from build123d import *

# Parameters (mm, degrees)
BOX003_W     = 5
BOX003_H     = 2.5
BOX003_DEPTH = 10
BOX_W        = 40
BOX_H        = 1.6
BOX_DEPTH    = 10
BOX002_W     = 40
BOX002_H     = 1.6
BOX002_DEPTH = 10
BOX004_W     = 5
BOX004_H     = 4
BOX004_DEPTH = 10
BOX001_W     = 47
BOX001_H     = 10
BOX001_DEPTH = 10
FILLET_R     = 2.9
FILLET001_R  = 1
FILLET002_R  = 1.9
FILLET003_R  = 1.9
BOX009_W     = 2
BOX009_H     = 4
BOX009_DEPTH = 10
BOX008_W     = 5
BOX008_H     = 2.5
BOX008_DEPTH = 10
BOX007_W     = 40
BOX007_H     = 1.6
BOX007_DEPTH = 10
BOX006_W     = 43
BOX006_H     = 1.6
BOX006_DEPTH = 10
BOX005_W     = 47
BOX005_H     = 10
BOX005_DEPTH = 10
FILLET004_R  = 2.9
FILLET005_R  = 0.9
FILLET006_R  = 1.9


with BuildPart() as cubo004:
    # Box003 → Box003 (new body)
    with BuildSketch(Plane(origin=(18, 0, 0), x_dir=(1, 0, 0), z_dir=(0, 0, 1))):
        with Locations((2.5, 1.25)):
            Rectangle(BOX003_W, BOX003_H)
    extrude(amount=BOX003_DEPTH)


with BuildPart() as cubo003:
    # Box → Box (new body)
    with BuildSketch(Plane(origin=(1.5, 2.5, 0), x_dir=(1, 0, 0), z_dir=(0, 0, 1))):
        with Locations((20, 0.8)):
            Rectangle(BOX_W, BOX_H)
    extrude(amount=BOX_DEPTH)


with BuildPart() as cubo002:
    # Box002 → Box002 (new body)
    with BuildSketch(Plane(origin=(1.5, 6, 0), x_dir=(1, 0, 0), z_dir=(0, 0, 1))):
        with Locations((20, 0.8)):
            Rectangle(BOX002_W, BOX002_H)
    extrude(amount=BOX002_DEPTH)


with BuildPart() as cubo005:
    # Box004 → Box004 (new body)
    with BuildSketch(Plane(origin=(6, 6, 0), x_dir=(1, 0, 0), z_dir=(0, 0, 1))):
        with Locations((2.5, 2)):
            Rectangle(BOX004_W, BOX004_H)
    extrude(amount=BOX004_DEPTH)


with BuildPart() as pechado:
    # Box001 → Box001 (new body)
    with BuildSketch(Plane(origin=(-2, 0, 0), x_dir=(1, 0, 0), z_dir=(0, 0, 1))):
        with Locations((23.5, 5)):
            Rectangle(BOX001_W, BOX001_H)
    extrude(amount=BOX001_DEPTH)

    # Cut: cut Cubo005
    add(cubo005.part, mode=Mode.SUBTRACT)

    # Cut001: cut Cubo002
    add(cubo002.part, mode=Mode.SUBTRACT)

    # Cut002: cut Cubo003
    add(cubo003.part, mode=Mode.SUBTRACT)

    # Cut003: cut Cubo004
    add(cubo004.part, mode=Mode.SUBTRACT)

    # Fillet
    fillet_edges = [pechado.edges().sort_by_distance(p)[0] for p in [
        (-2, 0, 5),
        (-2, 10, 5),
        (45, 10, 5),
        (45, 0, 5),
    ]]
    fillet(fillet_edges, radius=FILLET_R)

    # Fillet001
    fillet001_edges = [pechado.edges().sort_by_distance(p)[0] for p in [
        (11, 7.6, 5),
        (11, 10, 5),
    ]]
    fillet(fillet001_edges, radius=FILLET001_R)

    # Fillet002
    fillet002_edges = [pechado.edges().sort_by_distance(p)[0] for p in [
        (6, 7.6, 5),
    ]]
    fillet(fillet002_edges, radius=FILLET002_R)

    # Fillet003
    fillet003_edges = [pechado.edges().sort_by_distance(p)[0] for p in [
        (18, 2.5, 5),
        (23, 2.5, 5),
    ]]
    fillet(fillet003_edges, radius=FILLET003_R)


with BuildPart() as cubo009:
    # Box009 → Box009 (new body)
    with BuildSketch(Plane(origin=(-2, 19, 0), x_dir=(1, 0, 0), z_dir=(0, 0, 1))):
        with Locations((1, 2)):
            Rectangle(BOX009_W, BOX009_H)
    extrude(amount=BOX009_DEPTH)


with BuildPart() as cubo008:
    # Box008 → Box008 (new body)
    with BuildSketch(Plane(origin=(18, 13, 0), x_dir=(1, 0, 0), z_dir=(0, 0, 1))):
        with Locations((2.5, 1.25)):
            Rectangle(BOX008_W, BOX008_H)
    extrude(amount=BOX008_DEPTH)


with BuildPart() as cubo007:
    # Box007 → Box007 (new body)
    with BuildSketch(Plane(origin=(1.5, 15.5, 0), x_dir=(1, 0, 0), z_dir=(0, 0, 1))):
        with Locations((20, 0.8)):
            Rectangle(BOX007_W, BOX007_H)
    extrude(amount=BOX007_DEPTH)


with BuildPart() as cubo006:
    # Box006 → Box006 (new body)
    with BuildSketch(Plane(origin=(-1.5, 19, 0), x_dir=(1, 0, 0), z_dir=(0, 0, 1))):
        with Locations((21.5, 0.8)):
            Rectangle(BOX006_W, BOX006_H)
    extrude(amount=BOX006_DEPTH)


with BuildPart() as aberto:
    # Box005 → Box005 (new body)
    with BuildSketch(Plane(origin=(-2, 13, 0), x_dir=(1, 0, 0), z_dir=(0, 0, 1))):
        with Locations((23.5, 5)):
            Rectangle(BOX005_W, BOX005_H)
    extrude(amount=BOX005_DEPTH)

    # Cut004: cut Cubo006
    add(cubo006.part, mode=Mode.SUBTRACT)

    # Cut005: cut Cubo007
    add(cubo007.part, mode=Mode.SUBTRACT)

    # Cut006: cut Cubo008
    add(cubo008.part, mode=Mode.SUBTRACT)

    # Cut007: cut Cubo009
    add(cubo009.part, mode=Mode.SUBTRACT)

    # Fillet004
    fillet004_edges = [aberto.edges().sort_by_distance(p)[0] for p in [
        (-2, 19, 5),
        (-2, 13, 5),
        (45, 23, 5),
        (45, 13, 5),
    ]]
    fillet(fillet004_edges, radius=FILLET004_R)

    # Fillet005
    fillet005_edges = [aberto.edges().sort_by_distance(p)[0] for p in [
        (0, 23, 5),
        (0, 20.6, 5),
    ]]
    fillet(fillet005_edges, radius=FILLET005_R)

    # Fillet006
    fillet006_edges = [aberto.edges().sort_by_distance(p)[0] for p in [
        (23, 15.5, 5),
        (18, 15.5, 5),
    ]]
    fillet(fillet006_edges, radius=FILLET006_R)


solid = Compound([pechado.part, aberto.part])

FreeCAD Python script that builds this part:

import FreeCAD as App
import Part
import Sketcher
from FreeCAD import Vector


def edges_at(feature, points):
    """Names of the edges that pass closest to the given points."""
    edges = feature.Shape.Edges
    near = lambda p: min(range(len(edges)), key=lambda i: edges[i].distToShape(Part.Vertex(*p))[0])
    return sorted({f"Edge{near(p) + 1}" for p in points})


def add_polygon(sketch, points):
    """Adds a closed chain of lines whose ends are joined by coincident constraints."""
    first, n = sketch.GeometryCount, len(points)
    for a, b in zip(points, points[1:] + points[:1]):
        sketch.addGeometry(Part.LineSegment(App.Vector(*a, 0), App.Vector(*b, 0)), False)
    for i in range(n):
        sketch.addConstraint(Sketcher.Constraint("Coincident", first + i, 2, first + (i + 1) % n, 1))

doc = App.newDocument("Part")
body = doc.addObject("PartDesign::Body", "Body")

# Sketch on XY plane
sketch1 = body.newObject("Sketcher::SketchObject", "Sketch")
sketch1.AttachmentSupport = (doc.getObject("XY_Plane"), [""])
sketch1.MapMode = "FlatFace"
add_polygon(sketch1, [(18, 2.5), (18, 0), (23, 0), (23, 2.5)])  # lines 0-3
sketch1.addConstraint(Sketcher.Constraint("Vertical", 0))
sketch1.addConstraint(Sketcher.Constraint("Horizontal", 1))
sketch1.addConstraint(Sketcher.Constraint("Vertical", 2))
sketch1.addConstraint(Sketcher.Constraint("Horizontal", 3))
sketch1.addConstraint(Sketcher.Constraint("PointOnObject", 0, 2, -1))
sketch1.addConstraint(Sketcher.Constraint("DistanceX", 1, 1, 1, 2, 5.0))
sketch1.addConstraint(Sketcher.Constraint("DistanceY", 0, 2, 0, 1, 2.5))
sketch1.addConstraint(Sketcher.Constraint("DistanceX", -1, 1, 0, 2, 18.0))
pad1 = body.newObject("PartDesign::Pad", "Pad")
pad1.Profile = sketch1
pad1.Length = 10
body2 = doc.addObject("PartDesign::Body", "Body001")

# Sketch on XY plane
sketch2 = body2.newObject("Sketcher::SketchObject", "Sketch001")
sketch2.AttachmentSupport = (doc.getObject("XY_Plane001"), [""])
sketch2.MapMode = "FlatFace"
add_polygon(sketch2, [(1.5, 4.1), (1.5, 2.5), (41.5, 2.5), (41.5, 4.1)])  # lines 0-3
sketch2.addConstraint(Sketcher.Constraint("Vertical", 0))
sketch2.addConstraint(Sketcher.Constraint("Horizontal", 1))
sketch2.addConstraint(Sketcher.Constraint("Vertical", 2))
sketch2.addConstraint(Sketcher.Constraint("Horizontal", 3))
sketch2.addConstraint(Sketcher.Constraint("DistanceX", 1, 1, 1, 2, 40.0))
sketch2.addConstraint(Sketcher.Constraint("DistanceY", 0, 2, 0, 1, 1.6))
sketch2.addConstraint(Sketcher.Constraint("DistanceX", -1, 1, 0, 2, 1.5))
sketch2.addConstraint(Sketcher.Constraint("DistanceY", -1, 1, 0, 2, 2.5))
pad2 = body2.newObject("PartDesign::Pad", "Pad001")
pad2.Profile = sketch2
pad2.Length = 10
body3 = doc.addObject("PartDesign::Body", "Body002")

# Sketch on XY plane
sketch3 = body3.newObject("Sketcher::SketchObject", "Sketch002")
sketch3.AttachmentSupport = (doc.getObject("XY_Plane002"), [""])
sketch3.MapMode = "FlatFace"
add_polygon(sketch3, [(1.5, 7.6), (1.5, 6), (41.5, 6), (41.5, 7.6)])  # lines 0-3
sketch3.addConstraint(Sketcher.Constraint("Vertical", 0))
sketch3.addConstraint(Sketcher.Constraint("Horizontal", 1))
sketch3.addConstraint(Sketcher.Constraint("Vertical", 2))
sketch3.addConstraint(Sketcher.Constraint("Horizontal", 3))
sketch3.addConstraint(Sketcher.Constraint("DistanceX", 1, 1, 1, 2, 40.0))
sketch3.addConstraint(Sketcher.Constraint("DistanceY", 0, 2, 0, 1, 1.6))
sketch3.addConstraint(Sketcher.Constraint("DistanceY", -1, 1, 0, 2, 6.0))
sketch3.addConstraint(Sketcher.Constraint("DistanceX", -1, 1, 0, 2, 1.5))
pad3 = body3.newObject("PartDesign::Pad", "Pad002")
pad3.Profile = sketch3
pad3.Length = 10
body4 = doc.addObject("PartDesign::Body", "Body003")

# Sketch on XY plane
sketch4 = body4.newObject("Sketcher::SketchObject", "Sketch003")
sketch4.AttachmentSupport = (doc.getObject("XY_Plane003"), [""])
sketch4.MapMode = "FlatFace"
add_polygon(sketch4, [(6, 10), (6, 6), (11, 6), (11, 10)])  # lines 0-3
sketch4.addConstraint(Sketcher.Constraint("Vertical", 0))
sketch4.addConstraint(Sketcher.Constraint("Horizontal", 1))
sketch4.addConstraint(Sketcher.Constraint("Vertical", 2))
sketch4.addConstraint(Sketcher.Constraint("Horizontal", 3))
sketch4.addConstraint(Sketcher.Constraint("DistanceX", 1, 1, 1, 2, 5.0))
sketch4.addConstraint(Sketcher.Constraint("DistanceY", 0, 2, 0, 1, 4.0))
sketch4.addConstraint(Sketcher.Constraint("DistanceX", -1, 1, 0, 2, 6.0))
sketch4.addConstraint(Sketcher.Constraint("DistanceY", -1, 1, 0, 2, 6.0))
pad4 = body4.newObject("PartDesign::Pad", "Pad003")
pad4.Profile = sketch4
pad4.Length = 10
body5 = doc.addObject("PartDesign::Body", "Body004")

# Sketch on XY plane
sketch5 = body5.newObject("Sketcher::SketchObject", "Sketch004")
sketch5.AttachmentSupport = (doc.getObject("XY_Plane004"), [""])
sketch5.MapMode = "FlatFace"
add_polygon(sketch5, [(-2, 10), (-2, 0), (45, 0), (45, 10)])  # lines 0-3
sketch5.addConstraint(Sketcher.Constraint("Vertical", 0))
sketch5.addConstraint(Sketcher.Constraint("Horizontal", 1))
sketch5.addConstraint(Sketcher.Constraint("Vertical", 2))
sketch5.addConstraint(Sketcher.Constraint("Horizontal", 3))
sketch5.addConstraint(Sketcher.Constraint("PointOnObject", 0, 2, -1))
sketch5.addConstraint(Sketcher.Constraint("DistanceX", 1, 1, 1, 2, 47.0))
sketch5.addConstraint(Sketcher.Constraint("DistanceY", 0, 2, 0, 1, 10.0))
sketch5.addConstraint(Sketcher.Constraint("DistanceX", 0, 2, -1, 1, 2.0))
pad5 = body5.newObject("PartDesign::Pad", "Pad004")
pad5.Profile = sketch5
pad5.Length = 10
doc.recompute()

boolean = body5.newObject("PartDesign::Boolean", "Boolean")
boolean.Type = "Cut"
boolean.addObjects([body4])
doc.recompute()

boolean2 = body5.newObject("PartDesign::Boolean", "Boolean001")
boolean2.Type = "Cut"
boolean2.addObjects([body3])
doc.recompute()

boolean3 = body5.newObject("PartDesign::Boolean", "Boolean002")
boolean3.Type = "Cut"
boolean3.addObjects([body2])
doc.recompute()

boolean4 = body5.newObject("PartDesign::Boolean", "Boolean003")
boolean4.Type = "Cut"
boolean4.addObjects([body])
doc.recompute()

fillet = body5.newObject("PartDesign::Fillet", "Fillet")
fillet.Base = (boolean4, edges_at(boolean4, [
    (-2, 0, 5),
    (-2, 10, 5),
    (45, 10, 5),
    (45, 0, 5),
]))
fillet.Radius = 2.9
doc.recompute()

fillet2 = body5.newObject("PartDesign::Fillet", "Fillet001")
fillet2.Base = (fillet, edges_at(fillet, [(11, 7.6, 5), (11, 10, 5)]))
fillet2.Radius = 1
doc.recompute()

fillet3 = body5.newObject("PartDesign::Fillet", "Fillet002")
fillet3.Base = (fillet2, edges_at(fillet2, [(6, 7.6, 5)]))
fillet3.Radius = 1.9
doc.recompute()

fillet4 = body5.newObject("PartDesign::Fillet", "Fillet003")
fillet4.Base = (fillet3, edges_at(fillet3, [(18, 2.5, 5), (23, 2.5, 5)]))
fillet4.Radius = 1.9
body6 = doc.addObject("PartDesign::Body", "Body005")

# Sketch on XY plane
sketch6 = body6.newObject("Sketcher::SketchObject", "Sketch005")
sketch6.AttachmentSupport = (doc.getObject("XY_Plane005"), [""])
sketch6.MapMode = "FlatFace"
add_polygon(sketch6, [(-2, 23), (-2, 19), (0, 19), (0, 23)])  # lines 0-3
sketch6.addConstraint(Sketcher.Constraint("Vertical", 0))
sketch6.addConstraint(Sketcher.Constraint("Horizontal", 1))
sketch6.addConstraint(Sketcher.Constraint("Vertical", 2))
sketch6.addConstraint(Sketcher.Constraint("Horizontal", 3))
sketch6.addConstraint(Sketcher.Constraint("PointOnObject", 1, 2, -2))
sketch6.addConstraint(Sketcher.Constraint("DistanceX", 1, 1, 1, 2, 2.0))
sketch6.addConstraint(Sketcher.Constraint("DistanceY", 0, 2, 0, 1, 4.0))
sketch6.addConstraint(Sketcher.Constraint("DistanceY", -1, 1, 0, 2, 19.0))
pad6 = body6.newObject("PartDesign::Pad", "Pad005")
pad6.Profile = sketch6
pad6.Length = 10
body7 = doc.addObject("PartDesign::Body", "Body006")

# Sketch on XY plane
sketch7 = body7.newObject("Sketcher::SketchObject", "Sketch006")
sketch7.AttachmentSupport = (doc.getObject("XY_Plane006"), [""])
sketch7.MapMode = "FlatFace"
add_polygon(sketch7, [(18, 15.5), (18, 13), (23, 13), (23, 15.5)])  # lines 0-3
sketch7.addConstraint(Sketcher.Constraint("Vertical", 0))
sketch7.addConstraint(Sketcher.Constraint("Horizontal", 1))
sketch7.addConstraint(Sketcher.Constraint("Vertical", 2))
sketch7.addConstraint(Sketcher.Constraint("Horizontal", 3))
sketch7.addConstraint(Sketcher.Constraint("DistanceX", 1, 1, 1, 2, 5.0))
sketch7.addConstraint(Sketcher.Constraint("DistanceY", 0, 2, 0, 1, 2.5))
sketch7.addConstraint(Sketcher.Constraint("DistanceX", -1, 1, 0, 2, 18.0))
sketch7.addConstraint(Sketcher.Constraint("DistanceY", -1, 1, 0, 2, 13.0))
pad7 = body7.newObject("PartDesign::Pad", "Pad006")
pad7.Profile = sketch7
pad7.Length = 10
body8 = doc.addObject("PartDesign::Body", "Body007")

# Sketch on XY plane
sketch8 = body8.newObject("Sketcher::SketchObject", "Sketch007")
sketch8.AttachmentSupport = (doc.getObject("XY_Plane007"), [""])
sketch8.MapMode = "FlatFace"
add_polygon(sketch8, [(1.5, 17.1), (1.5, 15.5), (41.5, 15.5), (41.5, 17.1)])  # lines 0-3
sketch8.addConstraint(Sketcher.Constraint("Vertical", 0))
sketch8.addConstraint(Sketcher.Constraint("Horizontal", 1))
sketch8.addConstraint(Sketcher.Constraint("Vertical", 2))
sketch8.addConstraint(Sketcher.Constraint("Horizontal", 3))
sketch8.addConstraint(Sketcher.Constraint("DistanceX", 1, 1, 1, 2, 40.0))
sketch8.addConstraint(Sketcher.Constraint("DistanceY", 0, 2, 0, 1, 1.6))
sketch8.addConstraint(Sketcher.Constraint("DistanceX", -1, 1, 0, 2, 1.5))
sketch8.addConstraint(Sketcher.Constraint("DistanceY", -1, 1, 0, 2, 15.5))
pad8 = body8.newObject("PartDesign::Pad", "Pad007")
pad8.Profile = sketch8
pad8.Length = 10
body9 = doc.addObject("PartDesign::Body", "Body008")

# Sketch on XY plane
sketch9 = body9.newObject("Sketcher::SketchObject", "Sketch008")
sketch9.AttachmentSupport = (doc.getObject("XY_Plane008"), [""])
sketch9.MapMode = "FlatFace"
add_polygon(sketch9, [(-1.5, 20.6), (-1.5, 19), (41.5, 19), (41.5, 20.6)])  # lines 0-3
sketch9.addConstraint(Sketcher.Constraint("Vertical", 0))
sketch9.addConstraint(Sketcher.Constraint("Horizontal", 1))
sketch9.addConstraint(Sketcher.Constraint("Vertical", 2))
sketch9.addConstraint(Sketcher.Constraint("Horizontal", 3))
sketch9.addConstraint(Sketcher.Constraint("DistanceX", 1, 1, 1, 2, 43.0))
sketch9.addConstraint(Sketcher.Constraint("DistanceY", 0, 2, 0, 1, 1.6))
sketch9.addConstraint(Sketcher.Constraint("DistanceY", -1, 1, 0, 2, 19.0))
sketch9.addConstraint(Sketcher.Constraint("DistanceX", 0, 2, -1, 1, 1.5))
pad9 = body9.newObject("PartDesign::Pad", "Pad008")
pad9.Profile = sketch9
pad9.Length = 10
body10 = doc.addObject("PartDesign::Body", "Body009")

# Sketch on XY plane
sketch10 = body10.newObject("Sketcher::SketchObject", "Sketch009")
sketch10.AttachmentSupport = (doc.getObject("XY_Plane009"), [""])
sketch10.MapMode = "FlatFace"
add_polygon(sketch10, [(-2, 23), (-2, 13), (45, 13), (45, 23)])  # lines 0-3
sketch10.addConstraint(Sketcher.Constraint("Vertical", 0))
sketch10.addConstraint(Sketcher.Constraint("Horizontal", 1))
sketch10.addConstraint(Sketcher.Constraint("Vertical", 2))
sketch10.addConstraint(Sketcher.Constraint("Horizontal", 3))
sketch10.addConstraint(Sketcher.Constraint("DistanceX", 1, 1, 1, 2, 47.0))
sketch10.addConstraint(Sketcher.Constraint("DistanceY", 0, 2, 0, 1, 10.0))
sketch10.addConstraint(Sketcher.Constraint("DistanceX", 0, 2, -1, 1, 2.0))
sketch10.addConstraint(Sketcher.Constraint("DistanceY", -1, 1, 0, 2, 13.0))
pad10 = body10.newObject("PartDesign::Pad", "Pad009")
pad10.Profile = sketch10
pad10.Length = 10
doc.recompute()

boolean5 = body10.newObject("PartDesign::Boolean", "Boolean004")
boolean5.Type = "Cut"
boolean5.addObjects([body9])
doc.recompute()

boolean6 = body10.newObject("PartDesign::Boolean", "Boolean005")
boolean6.Type = "Cut"
boolean6.addObjects([body8])
doc.recompute()

boolean7 = body10.newObject("PartDesign::Boolean", "Boolean006")
boolean7.Type = "Cut"
boolean7.addObjects([body7])
doc.recompute()

boolean8 = body10.newObject("PartDesign::Boolean", "Boolean007")
boolean8.Type = "Cut"
boolean8.addObjects([body6])
doc.recompute()

fillet5 = body10.newObject("PartDesign::Fillet", "Fillet004")
fillet5.Base = (boolean8, edges_at(boolean8, [
    (-2, 19, 5),
    (-2, 13, 5),
    (45, 23, 5),
    (45, 13, 5),
]))
fillet5.Radius = 2.9
doc.recompute()

fillet6 = body10.newObject("PartDesign::Fillet", "Fillet005")
fillet6.Base = (fillet5, edges_at(fillet5, [(0, 23, 5), (0, 20.6, 5)]))
fillet6.Radius = 0.9
doc.recompute()

fillet7 = body10.newObject("PartDesign::Fillet", "Fillet006")
fillet7.Base = (fillet6, edges_at(fillet6, [(23, 15.5, 5), (18, 15.5, 5)]))
fillet7.Radius = 1.9

doc.recompute()
